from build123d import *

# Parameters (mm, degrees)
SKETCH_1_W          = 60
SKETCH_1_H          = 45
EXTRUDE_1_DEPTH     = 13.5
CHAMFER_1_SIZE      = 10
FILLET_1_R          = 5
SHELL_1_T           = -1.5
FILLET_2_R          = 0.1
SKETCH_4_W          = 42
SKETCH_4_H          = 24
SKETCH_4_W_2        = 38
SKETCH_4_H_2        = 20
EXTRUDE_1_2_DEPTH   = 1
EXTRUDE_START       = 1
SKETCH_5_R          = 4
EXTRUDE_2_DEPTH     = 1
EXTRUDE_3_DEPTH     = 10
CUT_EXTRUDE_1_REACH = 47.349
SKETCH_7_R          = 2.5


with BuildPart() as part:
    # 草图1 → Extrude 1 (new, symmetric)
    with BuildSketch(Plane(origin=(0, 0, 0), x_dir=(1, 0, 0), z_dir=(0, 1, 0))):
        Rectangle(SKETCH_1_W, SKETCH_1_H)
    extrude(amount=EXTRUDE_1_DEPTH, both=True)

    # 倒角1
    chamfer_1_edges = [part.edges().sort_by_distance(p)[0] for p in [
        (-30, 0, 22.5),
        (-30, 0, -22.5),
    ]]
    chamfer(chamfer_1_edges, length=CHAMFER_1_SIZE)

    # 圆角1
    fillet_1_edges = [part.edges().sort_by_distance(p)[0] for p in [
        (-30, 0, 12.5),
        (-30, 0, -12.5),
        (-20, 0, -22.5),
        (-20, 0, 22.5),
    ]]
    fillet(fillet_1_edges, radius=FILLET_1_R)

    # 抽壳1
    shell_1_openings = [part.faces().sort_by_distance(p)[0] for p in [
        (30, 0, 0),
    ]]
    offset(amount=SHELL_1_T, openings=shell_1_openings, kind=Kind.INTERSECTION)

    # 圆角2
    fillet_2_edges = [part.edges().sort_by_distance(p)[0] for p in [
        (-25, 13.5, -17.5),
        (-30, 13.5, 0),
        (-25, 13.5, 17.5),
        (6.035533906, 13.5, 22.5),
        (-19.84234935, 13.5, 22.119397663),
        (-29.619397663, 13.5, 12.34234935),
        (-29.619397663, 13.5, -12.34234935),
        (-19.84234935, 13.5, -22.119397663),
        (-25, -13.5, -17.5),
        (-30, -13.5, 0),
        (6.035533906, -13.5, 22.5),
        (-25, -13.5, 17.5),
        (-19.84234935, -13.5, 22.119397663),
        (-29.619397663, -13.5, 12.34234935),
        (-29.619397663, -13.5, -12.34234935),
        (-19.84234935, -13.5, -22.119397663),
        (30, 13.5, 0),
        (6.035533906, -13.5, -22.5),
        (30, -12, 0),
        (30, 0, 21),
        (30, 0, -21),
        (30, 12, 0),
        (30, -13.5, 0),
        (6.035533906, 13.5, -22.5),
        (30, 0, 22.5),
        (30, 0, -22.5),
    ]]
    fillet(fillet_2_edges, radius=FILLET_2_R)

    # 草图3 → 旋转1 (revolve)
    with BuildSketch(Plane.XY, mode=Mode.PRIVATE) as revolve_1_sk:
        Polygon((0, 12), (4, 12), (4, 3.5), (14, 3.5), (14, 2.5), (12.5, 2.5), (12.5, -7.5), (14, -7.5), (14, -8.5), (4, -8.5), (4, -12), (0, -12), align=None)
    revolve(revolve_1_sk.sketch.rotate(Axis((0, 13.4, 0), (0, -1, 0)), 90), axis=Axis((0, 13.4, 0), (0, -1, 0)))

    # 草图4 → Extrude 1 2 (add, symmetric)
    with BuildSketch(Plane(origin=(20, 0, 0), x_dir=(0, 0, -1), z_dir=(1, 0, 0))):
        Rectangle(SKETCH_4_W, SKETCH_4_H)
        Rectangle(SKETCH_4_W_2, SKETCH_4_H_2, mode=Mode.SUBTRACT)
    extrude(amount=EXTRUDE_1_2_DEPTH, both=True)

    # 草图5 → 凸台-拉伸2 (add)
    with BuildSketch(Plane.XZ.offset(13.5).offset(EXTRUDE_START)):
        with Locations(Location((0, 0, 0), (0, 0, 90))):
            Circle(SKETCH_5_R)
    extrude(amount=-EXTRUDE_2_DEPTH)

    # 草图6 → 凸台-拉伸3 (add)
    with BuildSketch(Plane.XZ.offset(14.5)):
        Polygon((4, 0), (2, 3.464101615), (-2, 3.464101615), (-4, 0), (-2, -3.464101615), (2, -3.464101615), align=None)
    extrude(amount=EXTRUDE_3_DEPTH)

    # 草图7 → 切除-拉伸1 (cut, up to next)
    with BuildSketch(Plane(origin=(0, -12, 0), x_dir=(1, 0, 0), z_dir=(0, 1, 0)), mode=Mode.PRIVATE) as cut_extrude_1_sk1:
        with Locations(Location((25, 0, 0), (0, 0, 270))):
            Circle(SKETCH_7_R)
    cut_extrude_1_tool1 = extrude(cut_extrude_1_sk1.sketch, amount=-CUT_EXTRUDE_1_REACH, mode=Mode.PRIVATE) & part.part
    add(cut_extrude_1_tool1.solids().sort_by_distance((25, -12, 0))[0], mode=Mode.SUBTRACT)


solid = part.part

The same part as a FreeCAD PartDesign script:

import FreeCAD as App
import Part
import Sketcher
from FreeCAD import Vector
Q = App.Units.Quantity


def edges_at(feature, points):
    """Names of the edges that pass closest to the given points."""
    edges = feature.Shape.Edges
    near = lambda p: min(range(len(edges)), key=lambda i: edges[i].distToShape(Part.Vertex(*p))[0])
    return sorted({f"Edge{near(p) + 1}" for p in points})


def faces_at(feature, points):
    """Names of the faces that lie closest to the given points."""
    faces = feature.Shape.Faces
    near = lambda p: min(range(len(faces)), key=lambda i: faces[i].distToShape(Part.Vertex(*p))[0])
    return sorted({f"Face{near(p) + 1}" for p in points})

doc = App.newDocument("Part")
params = doc.addObject("Spreadsheet::Sheet", "Params")
for row, (alias, value) in enumerate([
    ("sketch1_width", "60 mm"),
    ("sketch1_height", "45 mm"),
    ("pad1_length", "27 mm"),
    ("chamfer_size", "10 mm"),
    ("fillet_radius", "5 mm"),
    ("thickness_wall", "1.5 mm"),
    ("fillet2_radius", "0.1 mm"),
    ("sketch2_width", "4 mm"),
    ("sketch2_width2", "10 mm"),
    ("sketch2_height", "24 mm"),
    ("sketch2_height2", "1 mm"),
    ("sketch2_width3", "1.5 mm"),
    ("revolution_angle", "360 deg"),
    ("sketch3_width", "24 mm"),
    ("sketch3_width2", "20 mm"),
    ("sketch3_height", "42 mm"),
    ("sketch3_height2", "38 mm"),
    ("pad2_length", "2 mm"),
    ("sketch4_diameter", "8 mm"),
    ("pad3_length", "1 mm"),
    ("sketch5_width", "4 mm"),
    ("sketch5_length", "4 mm"),
    ("pad4_length", "10 mm"),
    ("sketch6_diameter", "5 mm"),
], start=1):
    params.set(f"A{row}", alias)
    params.set(f"B{row}", "=" + value)
    params.setAlias(f"B{row}", alias)

body = doc.addObject("PartDesign::Body", "Body")

# Sketch on XZ plane
sketch1 = body.newObject("Sketcher::SketchObject", "Sketch")
sketch1.AttachmentSupport = (doc.getObject("XZ_Plane"), [""])
sketch1.MapMode = "FlatFace"
sketch1.addGeometry([
    Part.LineSegment(Vector(-30, -22, 0), Vector(-30, 22, 0)),
    Part.LineSegment(Vector(-30, 22, 0), Vector(30, 22, 0)),
    Part.LineSegment(Vector(30, 22, 0), Vector(30, -22, 0)),
    Part.LineSegment(Vector(30, -22, 0), Vector(-30, -22, 0)),
], False)
sketch1.addConstraint([
    Sketcher.Constraint("Coincident", 0, 2, 1, 1),
    Sketcher.Constraint("Coincident", 1, 2, 2, 1),
    Sketcher.Constraint("Coincident", 2, 2, 3, 1),
    Sketcher.Constraint("Coincident", 3, 2, 0, 1),
    Sketcher.Constraint("Vertical", 0),
    Sketcher.Constraint("Horizontal", 1),
    Sketcher.Constraint("Vertical", 2),
    Sketcher.Constraint("Horizontal", 3),
    Sketcher.Constraint("Symmetric", 0, 2, 2, 2, -1, 1),
    Sketcher.Constraint("DistanceX", 1, 1, 1, 2, 60.0),
    Sketcher.Constraint("DistanceY", 0, 1, 0, 2, 45.0),
])
sketch1.setExpression("Constraints[9]", "Params.sketch1_width")
sketch1.setExpression("Constraints[10]", "Params.sketch1_height")
pad1 = body.newObject("PartDesign::Pad", "Pad")
pad1.Profile = sketch1
pad1.setExpression("Length", "Params.pad1_length")
pad1.Midplane = True
doc.recompute()

chamfer = body.newObject("PartDesign::Chamfer", "Chamfer")
chamfer.Base = (pad1, edges_at(pad1, [(-30, 0, 22.5), (-30, 0, -22.5)]))
chamfer.setExpression("Size", "Params.chamfer_size")
doc.recompute()

fillet = body.newObject("PartDesign::Fillet", "Fillet")
fillet.Base = (chamfer, edges_at(chamfer, [
    (-30, 0, 12.5),
    (-30, 0, -12.5),
    (-20, 0, -22.5),
    (-20, 0, 22.5),
]))
fillet.setExpression("Radius", "Params.fillet_radius")
doc.recompute()

thickness = body.newObject("PartDesign::Thickness", "Thickness")
thickness.Base = (fillet, faces_at(fillet, [(30, 0, 0)]))
thickness.setExpression("Value", "Params.thickness_wall")
thickness.Reversed = True
thickness.Join = "Intersection"
doc.recompute()

fillet2 = body.newObject("PartDesign::Fillet", "Fillet001")
fillet2.Base = (thickness, edges_at(thickness, [
    (-25, 13.5, -17.5),
    (-30, 13.5, 0),
    (-25, 13.5, 17.5),
    (6.036, 13.5, 22.5),
    (-19.842, 13.5, 22.119),
    (-29.619, 13.5, 12.342),
    (-29.619, 13.5, -12.342),
    (-19.842, 13.5, -22.119),
    (-25, -13.5, -17.5),
    (-30, -13.5, 0),
    (6.036, -13.5, 22.5),
    (-25, -13.5, 17.5),
    (-19.842, -13.5, 22.119),
    (-29.619, -13.5, 12.342),
    (-29.619, -13.5, -12.342),
    (-19.842, -13.5, -22.119),
    (30, 13.5, 0),
    (6.036, -13.5, -22.5),
    (30, -12, 0),
    (30, 0, 21),
    (30, 0, -21),
    (30, 12, 0),
    (30, -13.5, 0),
    (6.036, 13.5, -22.5),
    (30, 0, 22.5),
    (30, 0, -22.5),
]))
fillet2.setExpression("Radius", "Params.fillet2_radius")

# Sketch on XY plane
sketch2 = body.newObject("Sketcher::SketchObject", "Sketch001")
sketch2.AttachmentSupport = (doc.getObject("XY_Plane"), [""])
sketch2.MapMode = "FlatFace"
sketch2.addGeometry([
    Part.LineSegment(Vector(4, 12, 0), Vector(0, 12, 0)),  # 0
    Part.LineSegment(Vector(0, 12, 0), Vector(0, -12, 0)),  # 1
    Part.LineSegment(Vector(0, -12, 0), Vector(4, -12, 0)),  # 2
    Part.LineSegment(Vector(4, -12, 0), Vector(4, -8.5, 0)),  # 3
    Part.LineSegment(Vector(4, -8.5, 0), Vector(14, -8.5, 0)),  # 4
    Part.LineSegment(Vector(14, -8.5, 0), Vector(14, -7.5, 0)),  # 5
    Part.LineSegment(Vector(14, -7.5, 0), Vector(12.5, -7.5, 0)),  # 6
    Part.LineSegment(Vector(12.5, -7.5, 0), Vector(12.5, 2.5, 0)),  # 7
    Part.LineSegment(Vector(12.5, 2.5, 0), Vector(14, 2.5, 0)),  # 8
    Part.LineSegment(Vector(14, 2.5, 0), Vector(14, 3.5, 0)),  # 9
    Part.LineSegment(Vector(14, 3.5, 0), Vector(4, 3.5, 0)),  # 10
    Part.LineSegment(Vector(4, 3.5, 0), Vector(4, 12, 0)),  # 11
], False)
sketch2.addConstraint([
    Sketcher.Constraint("Coincident", 0, 2, 1, 1),
    Sketcher.Constraint("Coincident", 1, 2, 2, 1),
    Sketcher.Constraint("Coincident", 2, 2, 3, 1),
    Sketcher.Constraint("Coincident", 3, 2, 4, 1),
    Sketcher.Constraint("Coincident", 4, 2, 5, 1),
    Sketcher.Constraint("Coincident", 5, 2, 6, 1),
    Sketcher.Constraint("Coincident", 6, 2, 7, 1),
    Sketcher.Constraint("Coincident", 7, 2, 8, 1),
    Sketcher.Constraint("Coincident", 8, 2, 9, 1),
    Sketcher.Constraint("Coincident", 9, 2, 10, 1),
    Sketcher.Constraint("Coincident", 10, 2, 11, 1),
    Sketcher.Constraint("Coincident", 11, 2, 0, 1),
    Sketcher.Constraint("Horizontal", 0),
    Sketcher.Constraint("Vertical", 1),
    Sketcher.Constraint("Horizontal", 2),
    Sketcher.Constraint("Vertical", 3),
    Sketcher.Constraint("Horizontal", 4),
    Sketcher.Constraint("Vertical", 5),
    Sketcher.Constraint("Horizontal", 6),
    Sketcher.Constraint("Vertical", 7),
    Sketcher.Constraint("Horizontal", 8),
    Sketcher.Constraint("Vertical", 9),
    Sketcher.Constraint("Horizontal", 10),
    Sketcher.Constraint("Vertical", 11),
    Sketcher.Constraint("Symmetric", 0, 2, 1, 2, -1, 1),
    Sketcher.Constraint("Vertical", 5, 2, 8, 2),
    Sketcher.Constraint("Vertical", 3, 2, 10, 2),
    Sketcher.Constraint("Equal", 10, 7),
    Sketcher.Constraint("Equal", 5, 9),
    Sketcher.Constraint("DistanceX", 0, 2, 0, 1, 4.0),
    Sketcher.Constraint("DistanceX", 4, 1, 4, 2, 10.0),
    Sketcher.Constraint("DistanceY", 1, 2, 1, 1, 24.0),
    Sketcher.Constraint("DistanceY", 5, 1, 5, 2, 1.0),
    Sketcher.Constraint("DistanceX", 6, 2, 6, 1, 1.5),
    Sketcher.Constraint("DistanceY", 3, 1, 3, 2, 3.5),
])
sketch2.setExpression("Constraints[29]", "Params.sketch2_width")
sketch2.setExpression("Constraints[30]", "Params.sketch2_width2")
sketch2.setExpression("Constraints[31]", "Params.sketch2_height")
sketch2.setExpression("Constraints[32]", "Params.sketch2_height2")
sketch2.setExpression("Constraints[33]", "Params.sketch2_width3")
revolution = body.newObject("PartDesign::Revolution", "Revolution")
revolution.Profile = sketch2
revolution.ReferenceAxis = (sketch2, ["V_Axis"])
revolution.setExpression("Angle", "Params.revolution_angle")

# Sketch on YZ plane
sketch3 = body.newObject("Sketcher::SketchObject", "Sketch002")
sketch3.AttachmentSupport = (doc.getObject("YZ_Plane"), [""])
sketch3.MapMode = "FlatFace"
sketch3.AttachmentOffset = App.Placement(Vector(0, 0, 20), App.Rotation())
sketch3.addGeometry([
    Part.LineSegment(Vector(12, 21, 0), Vector(-12, 21, 0)),  # 0
    Part.LineSegment(Vector(-12, 21, 0), Vector(-12, -21, 0)),  # 1
    Part.LineSegment(Vector(-12, -21, 0), Vector(12, -21, 0)),  # 2
    Part.LineSegment(Vector(12, -21, 0), Vector(12, 21, 0)),  # 3
    Part.LineSegment(Vector(-10, -19, 0), Vector(-10, 19, 0)),  # 4
    Part.LineSegment(Vector(-10, 19, 0), Vector(10, 19, 0)),  # 5
    Part.LineSegment(Vector(10, 19, 0), Vector(10, -19, 0)),  # 6
    Part.LineSegment(Vector(10, -19, 0), Vector(-10, -19, 0)),  # 7
], False)
sketch3.addConstraint([
    Sketcher.Constraint("Coincident", 0, 2, 1, 1),
    Sketcher.Constraint("Coincident", 1, 2, 2, 1),
    Sketcher.Constraint("Coincident", 2, 2, 3, 1),
    Sketcher.Constraint("Coincident", 3, 2, 0, 1),
    Sketcher.Constraint("Coincident", 4, 2, 5, 1),
    Sketcher.Constraint("Coincident", 5, 2, 6, 1),
    Sketcher.Constraint("Coincident", 6, 2, 7, 1),
    Sketcher.Constraint("Coincident", 7, 2, 4, 1),
    Sketcher.Constraint("Horizontal", 0),
    Sketcher.Constraint("Vertical", 1),
    Sketcher.Constraint("Horizontal", 2),
    Sketcher.Constraint("Vertical", 3),
    Sketcher.Constraint("Vertical", 4),
    Sketcher.Constraint("Horizontal", 5),
    Sketcher.Constraint("Vertical", 6),
    Sketcher.Constraint("Horizontal", 7),
    Sketcher.Constraint("Symmetric", 0, 2, 2, 2, -1, 1),
    Sketcher.Constraint("Symmetric", 4, 2, 6, 2, -1, 1),
    Sketcher.Constraint("DistanceX", 0, 2, 0, 1, 24.0),
    Sketcher.Constraint("DistanceX", 5, 1, 5, 2, 20.0),
    Sketcher.Constraint("DistanceY", 1, 2, 1, 1, 42.0),
    Sketcher.Constraint("DistanceY", 4, 1, 4, 2, 38.0),
])
sketch3.setExpression("Constraints[18]", "Params.sketch3_width")
sketch3.setExpression("Constraints[19]", "Params.sketch3_width2")
sketch3.setExpression("Constraints[20]", "Params.sketch3_height")
sketch3.setExpression("Constraints[21]", "Params.sketch3_height2")
pad2 = body.newObject("PartDesign::Pad", "Pad001")
pad2.Profile = sketch3
pad2.setExpression("Length", "Params.pad2_length")
pad2.Midplane = True

# Sketch on XZ plane
sketch4 = body.newObject("Sketcher::SketchObject", "Sketch003")
sketch4.AttachmentSupport = (doc.getObject("XZ_Plane"), [""])
sketch4.MapMode = "FlatFace"
sketch4.AttachmentOffset = App.Placement(Vector(0, 0, 14.5), App.Rotation())
sketch4.addGeometry(Part.Circle(Vector(0, 0, 0), Vector(0, 0, 1), 4), False)
sketch4.addConstraint([
    Sketcher.Constraint("Coincident", 0, 3, -1, 1),
    Sketcher.Constraint("Diameter", 0, 8.0),
])
sketch4.setExpression("Constraints[1]", "Params.sketch4_diameter")
pad3 = body.newObject("PartDesign::Pad", "Pad002")
pad3.Profile = sketch4
pad3.setExpression("Length", "Params.pad3_length")
pad3.Reversed = True

# Sketch on XZ plane
sketch5 = body.newObject("Sketcher::SketchObject", "Sketch004")
sketch5.AttachmentSupport = (doc.getObject("XZ_Plane"), [""])
sketch5.MapMode = "FlatFace"
sketch5.AttachmentOffset = App.Placement(Vector(0, 0, 14.5), App.Rotation())
sketch5.addGeometry([
    Part.LineSegment(Vector(4, 0, 0), Vector(2, 3.5, 0)),  # 0
    Part.LineSegment(Vector(2, 3.5, 0), Vector(-2, 3.5, 0)),  # 1
    Part.LineSegment(Vector(-2, 3.5, 0), Vector(-4, 0, 0)),  # 2
    Part.LineSegment(Vector(-4, 0, 0), Vector(-2, -3.5, 0)),  # 3
    Part.LineSegment(Vector(-2, -3.5, 0), Vector(2, -3.5, 0)),  # 4
    Part.LineSegment(Vector(2, -3.5, 0), Vector(4, 0, 0)),  # 5
], False)
sketch5.addConstraint([
    Sketcher.Constraint("Coincident", 0, 2, 1, 1),
    Sketcher.Constraint("Coincident", 1, 2, 2, 1),
    Sketcher.Constraint("Coincident", 2, 2, 3, 1),
    Sketcher.Constraint("Coincident", 3, 2, 4, 1),
    Sketcher.Constraint("Coincident", 4, 2, 5, 1),
    Sketcher.Constraint("Coincident", 5, 2, 0, 1),
    Sketcher.Constraint("Horizontal", 1),
    Sketcher.Constraint("Horizontal", 4),
    Sketcher.Constraint("Symmetric", 0, 2, 3, 2, -1, 1),
    Sketcher.Constraint("Symmetric", 2, 2, 5, 2, -1, 1),
    Sketcher.Constraint("PointOnObject", 2, 2, -1),
    Sketcher.Constraint("Parallel", 2, 5),
    Sketcher.Constraint("Vertical", 1, 2, 3, 2),
    Sketcher.Constraint("DistanceX", 1, 2, 1, 1, 4.0),
    Sketcher.Constraint("Angle", 0, Q("120 deg")),
    Sketcher.Constraint("Distance", 0, 4.0),
])
sketch5.setExpression("Constraints[13]", "Params.sketch5_width")
sketch5.setExpression("Constraints[15]", "Params.sketch5_length")
pad4 = body.newObject("PartDesign::Pad", "Pad003")
pad4.Profile = sketch5
pad4.setExpression("Length", "Params.pad4_length")

# Sketch on XZ plane
sketch6 = body.newObject("Sketcher::SketchObject", "Sketch005")
sketch6.AttachmentSupport = (doc.getObject("XZ_Plane"), [""])
sketch6.MapMode = "FlatFace"
sketch6.AttachmentOffset = App.Placement(Vector(0, 0, 12), App.Rotation())
sketch6.addGeometry(Part.Circle(Vector(25, 0, 0), Vector(0, 0, 1), 2.5), False)
sketch6.addConstraint([
    Sketcher.Constraint("PointOnObject", 0, 3, -1),
    Sketcher.Constraint("Diameter", 0, 5.0),
    Sketcher.Constraint("DistanceX", -1, 1, 0, 3, 25.0),
])
sketch6.setExpression("Constraints[1]", "Params.sketch6_diameter")
pocket1 = body.newObject("PartDesign::Pocket", "Pocket")
pocket1.Profile = sketch6
pocket1.Type = "UpToFirst"
pocket1.Reversed = True

doc.recompute()
